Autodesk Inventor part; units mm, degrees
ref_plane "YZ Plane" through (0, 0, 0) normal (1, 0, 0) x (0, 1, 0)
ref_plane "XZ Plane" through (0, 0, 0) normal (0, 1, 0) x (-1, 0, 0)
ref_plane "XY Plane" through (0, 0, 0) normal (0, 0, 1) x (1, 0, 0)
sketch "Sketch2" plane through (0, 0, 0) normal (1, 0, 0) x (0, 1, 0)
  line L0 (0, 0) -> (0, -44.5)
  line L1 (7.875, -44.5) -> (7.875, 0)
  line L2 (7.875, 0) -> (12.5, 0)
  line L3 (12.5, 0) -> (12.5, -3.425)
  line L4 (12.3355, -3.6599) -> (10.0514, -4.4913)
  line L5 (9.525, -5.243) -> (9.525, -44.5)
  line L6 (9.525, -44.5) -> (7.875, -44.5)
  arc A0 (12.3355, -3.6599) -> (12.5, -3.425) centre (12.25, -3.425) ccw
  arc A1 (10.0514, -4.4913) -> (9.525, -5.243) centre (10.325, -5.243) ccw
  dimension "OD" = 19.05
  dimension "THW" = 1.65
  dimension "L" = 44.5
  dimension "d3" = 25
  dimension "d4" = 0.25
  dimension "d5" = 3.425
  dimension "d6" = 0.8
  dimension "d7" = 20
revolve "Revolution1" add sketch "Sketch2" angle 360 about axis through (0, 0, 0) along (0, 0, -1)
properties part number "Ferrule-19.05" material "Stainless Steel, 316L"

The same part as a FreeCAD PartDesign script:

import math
import FreeCAD as App
import Part
import Sketcher
Q = App.Units.Quantity

doc = App.newDocument("Part")
body = doc.addObject("PartDesign::Body", "Body")

# Sketch on YZ plane
sketch1 = doc.addObject("Sketcher::SketchObject", "Sketch")
body.addObject(sketch1)
sketch1.AttachmentSupport = (doc.YZ_Plane, [""])
sketch1.MapMode = "FlatFace"
sketch1.addGeometry(Part.LineSegment(App.Vector(7.875, 0, 0), App.Vector(7.875, -44.5, 0)), False)
sketch1.addGeometry(Part.LineSegment(App.Vector(7.875, -44.5, 0), App.Vector(9.525, -44.5, 0)), False)
sketch1.addGeometry(Part.LineSegment(App.Vector(9.525, -44.5, 0), App.Vector(9.525, -5.243, 0)), False)
sketch1.addGeometry(Part.ArcOfCircle(Part.Circle(App.Vector(10.325, -5.243, 0), App.Vector(0, 0, 1), 0.799944), math.radians(110.000241), math.radians(180)), False)
sketch1.addGeometry(Part.LineSegment(App.Vector(10.0514, -4.4913, 0), App.Vector(12.3355, -3.6599, 0)), False)
sketch1.addGeometry(Part.ArcOfCircle(Part.Circle(App.Vector(12.25, -3.425, 0), App.Vector(0, 0, 1), 0.249977), math.radians(-69.999269), math.radians(0)), False)
sketch1.addGeometry(Part.LineSegment(App.Vector(12.5, -3.425, 0), App.Vector(12.5, 0, 0)), False)
sketch1.addGeometry(Part.LineSegment(App.Vector(12.5, 0, 0), App.Vector(7.875, 0, 0)), False)
sketch1.addConstraint(Sketcher.Constraint("Coincident", 0, 2, 1, 1))
sketch1.addConstraint(Sketcher.Constraint("Coincident", 1, 2, 2, 1))
sketch1.addConstraint(Sketcher.Constraint("Tangent", 2, 2, 3, 2))
sketch1.addConstraint(Sketcher.Constraint("Tangent", 3, 1, 4, 1))
sketch1.addConstraint(Sketcher.Constraint("Tangent", 4, 2, 5, 1))
sketch1.addConstraint(Sketcher.Constraint("Tangent", 5, 2, 6, 1))
sketch1.addConstraint(Sketcher.Constraint("Coincident", 6, 2, 7, 1))
sketch1.addConstraint(Sketcher.Constraint("Coincident", 7, 2, 0, 1))
sketch1.addConstraint(Sketcher.Constraint("Vertical", 0))
sketch1.addConstraint(Sketcher.Constraint("Horizontal", 1))
sketch1.addConstraint(Sketcher.Constraint("Vertical", 2))
sketch1.addConstraint(Sketcher.Constraint("Vertical", 6))
sketch1.addConstraint(Sketcher.Constraint("Horizontal", 7))
sketch1.addConstraint(Sketcher.Constraint("PointOnObject", 6, 2, -1))
sketch1.addConstraint(Sketcher.Constraint("Radius", 3, Q("0.8 mm")))
sketch1.addConstraint(Sketcher.Constraint("Radius", 5, Q("0.25 mm")))
sketch1.addConstraint(Sketcher.Constraint("DistanceY", 0, 2, 0, 1, Q("44.5 mm")))
sketch1.addConstraint(Sketcher.Constraint("DistanceX", 1, 1, 1, 2, Q("1.65 mm")))
sketch1.addConstraint(Sketcher.Constraint("DistanceY", 6, 1, 6, 2, Q("3.425 mm")))
sketch1.addConstraint(Sketcher.Constraint("DistanceX", -1, 1, 5, 2, Q("12.5 mm")))
sketch1.addConstraint(Sketcher.Constraint("DistanceX", 7, 2, 7, 1, Q("4.625 mm")))
sketch1.addConstraint(Sketcher.Constraint("DistanceY", 2, 1, 2, 2, Q("39.257 mm")))
revolution = doc.addObject("PartDesign::Revolution", "Revolution")
body.addObject(revolution)
revolution.Profile = sketch1
revolution.ReferenceAxis = (sketch1, ["V_Axis"])
revolution.Angle = 360

doc.recompute()
